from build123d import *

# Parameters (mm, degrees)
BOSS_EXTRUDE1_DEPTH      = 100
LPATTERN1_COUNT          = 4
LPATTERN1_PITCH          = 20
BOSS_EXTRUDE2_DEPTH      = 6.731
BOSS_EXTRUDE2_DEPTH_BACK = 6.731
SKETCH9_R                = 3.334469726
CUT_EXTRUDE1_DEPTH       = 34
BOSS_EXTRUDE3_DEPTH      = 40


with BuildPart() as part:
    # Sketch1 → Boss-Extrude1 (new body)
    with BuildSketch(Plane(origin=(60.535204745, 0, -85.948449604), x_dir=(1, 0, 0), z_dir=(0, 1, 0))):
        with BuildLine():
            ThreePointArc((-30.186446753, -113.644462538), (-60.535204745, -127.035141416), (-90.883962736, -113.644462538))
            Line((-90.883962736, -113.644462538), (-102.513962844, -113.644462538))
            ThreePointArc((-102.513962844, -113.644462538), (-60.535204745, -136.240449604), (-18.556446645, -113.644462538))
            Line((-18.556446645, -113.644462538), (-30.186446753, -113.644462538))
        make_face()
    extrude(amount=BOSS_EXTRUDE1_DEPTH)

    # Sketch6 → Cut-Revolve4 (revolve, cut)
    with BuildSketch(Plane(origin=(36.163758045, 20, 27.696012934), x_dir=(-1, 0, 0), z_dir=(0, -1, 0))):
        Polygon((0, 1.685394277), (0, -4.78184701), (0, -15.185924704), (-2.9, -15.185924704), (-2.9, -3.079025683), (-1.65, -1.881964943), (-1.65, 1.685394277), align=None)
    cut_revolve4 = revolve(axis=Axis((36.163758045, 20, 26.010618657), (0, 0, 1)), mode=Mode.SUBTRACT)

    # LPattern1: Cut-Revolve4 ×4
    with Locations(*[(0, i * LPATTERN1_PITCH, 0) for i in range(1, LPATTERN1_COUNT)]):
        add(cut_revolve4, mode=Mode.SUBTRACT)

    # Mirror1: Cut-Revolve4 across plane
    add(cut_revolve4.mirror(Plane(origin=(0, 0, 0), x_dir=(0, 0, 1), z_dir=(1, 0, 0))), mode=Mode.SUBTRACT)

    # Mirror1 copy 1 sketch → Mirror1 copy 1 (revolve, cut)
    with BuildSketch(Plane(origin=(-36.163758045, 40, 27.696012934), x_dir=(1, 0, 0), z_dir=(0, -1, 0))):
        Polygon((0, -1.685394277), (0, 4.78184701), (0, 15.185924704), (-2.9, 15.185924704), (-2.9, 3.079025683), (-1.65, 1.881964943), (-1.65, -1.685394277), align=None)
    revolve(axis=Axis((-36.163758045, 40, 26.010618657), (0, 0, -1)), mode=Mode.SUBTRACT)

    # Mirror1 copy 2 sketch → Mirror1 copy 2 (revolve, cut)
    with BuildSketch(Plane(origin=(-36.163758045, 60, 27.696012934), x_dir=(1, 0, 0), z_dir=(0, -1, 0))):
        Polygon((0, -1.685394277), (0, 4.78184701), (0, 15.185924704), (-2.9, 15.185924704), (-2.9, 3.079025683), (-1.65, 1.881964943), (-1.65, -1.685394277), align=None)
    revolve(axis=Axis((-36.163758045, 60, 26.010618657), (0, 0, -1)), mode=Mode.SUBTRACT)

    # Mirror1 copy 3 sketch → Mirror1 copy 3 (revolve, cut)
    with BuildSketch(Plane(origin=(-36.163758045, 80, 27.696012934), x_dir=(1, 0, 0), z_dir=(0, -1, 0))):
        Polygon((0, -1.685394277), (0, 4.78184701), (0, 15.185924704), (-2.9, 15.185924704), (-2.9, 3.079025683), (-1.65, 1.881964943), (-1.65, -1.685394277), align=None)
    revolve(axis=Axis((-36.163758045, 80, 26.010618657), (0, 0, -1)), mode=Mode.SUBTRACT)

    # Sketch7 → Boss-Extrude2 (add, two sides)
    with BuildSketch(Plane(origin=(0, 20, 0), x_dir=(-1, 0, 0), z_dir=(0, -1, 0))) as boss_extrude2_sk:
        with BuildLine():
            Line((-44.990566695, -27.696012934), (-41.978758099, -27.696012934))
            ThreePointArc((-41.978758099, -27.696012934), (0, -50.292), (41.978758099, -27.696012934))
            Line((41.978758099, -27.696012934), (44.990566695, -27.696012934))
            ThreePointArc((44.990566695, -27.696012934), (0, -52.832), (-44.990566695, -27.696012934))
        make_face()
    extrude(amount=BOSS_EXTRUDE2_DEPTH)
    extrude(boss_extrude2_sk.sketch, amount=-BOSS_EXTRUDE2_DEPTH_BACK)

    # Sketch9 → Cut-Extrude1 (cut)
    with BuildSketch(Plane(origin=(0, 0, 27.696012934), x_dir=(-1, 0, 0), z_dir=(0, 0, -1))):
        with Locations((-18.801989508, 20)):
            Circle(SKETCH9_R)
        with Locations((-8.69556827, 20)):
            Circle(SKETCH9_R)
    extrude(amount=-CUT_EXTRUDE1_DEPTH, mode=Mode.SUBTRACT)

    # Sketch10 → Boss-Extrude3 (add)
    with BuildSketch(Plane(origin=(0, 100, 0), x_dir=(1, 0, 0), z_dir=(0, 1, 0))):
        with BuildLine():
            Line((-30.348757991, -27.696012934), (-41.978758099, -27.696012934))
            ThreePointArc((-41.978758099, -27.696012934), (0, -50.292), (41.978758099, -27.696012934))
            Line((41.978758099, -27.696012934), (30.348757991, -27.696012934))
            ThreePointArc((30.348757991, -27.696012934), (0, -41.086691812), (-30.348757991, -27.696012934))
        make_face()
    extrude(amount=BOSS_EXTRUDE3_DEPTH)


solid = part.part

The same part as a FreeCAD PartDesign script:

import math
import FreeCAD as App
import Part
import Sketcher


def add_polygon(sketch, points):
    """Adds a closed chain of lines whose ends are joined by coincident constraints."""
    first, n = sketch.GeometryCount, len(points)
    for a, b in zip(points, points[1:] + points[:1]):
        sketch.addGeometry(Part.LineSegment(App.Vector(*a, 0), App.Vector(*b, 0)), False)
    for i in range(n):
        sketch.addConstraint(Sketcher.Constraint("Coincident", first + i, 2, first + (i + 1) % n, 1))

doc = App.newDocument("Part")
body = doc.addObject("PartDesign::Body", "Body")

sketch1 = body.newObject("Sketcher::SketchObject", "Sketch")
sketch1.AttachmentSupport = (doc.getObject("XZ_Plane"), [""])
sketch1.MapMode = "FlatFace"
sketch1.addGeometry([
    Part.ArcOfCircle(Part.Circle(App.Vector(0, 0, 0), App.Vector(0, 0, 1), 41), math.radians(42), math.radians(138)),
    Part.LineSegment(App.Vector(-30, 28, 0), App.Vector(-42, 28, 0)),
    Part.ArcOfCircle(Part.Circle(App.Vector(0, 0, 0), App.Vector(0, 0, 1), 50), math.radians(33), math.radians(147)),
    Part.LineSegment(App.Vector(42, 28, 0), App.Vector(30, 28, 0)),
], False)
sketch1.addConstraint([
    Sketcher.Constraint("Coincident", 0, 2, 1, 1),
    Sketcher.Constraint("Coincident", 1, 2, 2, 2),
    Sketcher.Constraint("Coincident", 2, 1, 3, 1),
    Sketcher.Constraint("Coincident", 3, 2, 0, 1),
    Sketcher.Constraint("Horizontal", 1),
    Sketcher.Constraint("Horizontal", 3),
    Sketcher.Constraint("Coincident", 0, 3, -1, 1),
    Sketcher.Constraint("Coincident", 2, 3, -1, 1),
    Sketcher.Constraint("Horizontal", 1, 2, 2, 1),
    Sketcher.Constraint("Radius", 2, 50.292),
    Sketcher.Constraint("DistanceX", 1, 2, 1, 1, 11.63),
    Sketcher.Constraint("Radius", 0, 41.086692),
])
pad1 = body.newObject("PartDesign::Pad", "Pad")
pad1.Profile = sketch1
pad1.Length = 100
pad1.Reversed = True

sketch2 = body.newObject("Sketcher::SketchObject", "Sketch001")
sketch2.AttachmentSupport = (doc.getObject("XZ_Plane"), [""])
sketch2.MapMode = "FlatFace"
sketch2.AttachmentOffset = App.Placement(App.Vector(0, 0, -20), App.Rotation())
add_polygon(sketch2, [(36.2, 42.9), (36.2, 26), (37.8, 26), (37.8, 29.6), (39.1, 30.8), (39.1, 42.9)])
sketch2.addGeometry(Part.LineSegment(App.Vector(36.2, 26, 0), App.Vector(36.2, 42.9, 0)), True)
sketch2.addConstraint([
    Sketcher.Constraint("Vertical", 0),
    Sketcher.Constraint("Horizontal", 1),
    Sketcher.Constraint("Vertical", 2),
    Sketcher.Constraint("Vertical", 4),
    Sketcher.Constraint("Horizontal", 5),
    Sketcher.Constraint("Vertical", 6),
    Sketcher.Constraint("Coincident", 6, 1, 0, 2),
    Sketcher.Constraint("Horizontal", 4, 2, 6, 2),
    Sketcher.Constraint("DistanceX", 5, 2, 5, 1, 2.9),
    Sketcher.Constraint("DistanceX", 1, 1, 1, 2, 1.65),
    Sketcher.Constraint("DistanceY", 4, 1, 4, 2, 12.106899),
    Sketcher.Constraint("DistanceY", 0, 2, 0, 1, 16.871319),
    Sketcher.Constraint("DistanceY", 2, 1, 2, 2, 3.567359),
    Sketcher.Constraint("DistanceX", -1, 1, 0, 2, 36.163758),
    Sketcher.Constraint("DistanceY", -1, 1, 0, 2, 26.010619),
])
groove = body.newObject("PartDesign::Groove", "Groove")
groove.Profile = sketch2
groove.ReferenceAxis = (sketch2, ["Axis0"])
groove.Angle = 360
doc.recompute()

linearpattern = body.newObject("PartDesign::LinearPattern", "LinearPattern")
linearpattern.Originals = [groove]
linearpattern.Direction = (doc.getObject("Y_Axis"), [""])
linearpattern.Mode = "offset"
linearpattern.Offset = 20
linearpattern.Occurrences = 4
body.Tip = linearpattern
doc.recompute()

mirrored = body.newObject("PartDesign::Mirrored", "Mirrored")
mirrored.Originals = [groove]
mirrored.MirrorPlane = (doc.getObject("YZ_Plane"), [""])
body.Tip = mirrored

sketch3 = body.newObject("Sketcher::SketchObject", "Sketch002")
sketch3.AttachmentSupport = (doc.getObject("XZ_Plane"), [""])
sketch3.MapMode = "FlatFace"
sketch3.AttachmentOffset = App.Placement(App.Vector(0, 0, -40), App.Rotation())
add_polygon(sketch3, [(-36.2, 26), (-36.2, 42.9), (-39.1, 42.9), (-39.1, 30.8), (-37.8, 29.6), (-37.8, 26)])
sketch3.addGeometry(Part.LineSegment(App.Vector(-36.2, 42.9, 0), App.Vector(-36.2, 26, 0)), True)
sketch3.addConstraint([
    Sketcher.Constraint("Vertical", 0),
    Sketcher.Constraint("Horizontal", 1),
    Sketcher.Constraint("Vertical", 2),
    Sketcher.Constraint("Vertical", 4),
    Sketcher.Constraint("Horizontal", 5),
    Sketcher.Constraint("Vertical", 6),
    Sketcher.Constraint("Coincident", 6, 1, 0, 2),
    Sketcher.Constraint("Horizontal", 4, 2, 6, 2),
    Sketcher.Constraint("DistanceX", 1, 2, 1, 1, 2.9),
    Sketcher.Constraint("DistanceX", 5, 1, 5, 2, 1.65),
    Sketcher.Constraint("DistanceY", 2, 2, 2, 1, 12.106899),
    Sketcher.Constraint("DistanceY", 0, 1, 0, 2, 16.871319),
    Sketcher.Constraint("DistanceY", 4, 2, 4, 1, 3.567359),
    Sketcher.Constraint("DistanceX", 0, 2, -1, 1, 36.163758),
    Sketcher.Constraint("DistanceY", -1, 1, 2, 2, 30.775039),
])
groove2 = body.newObject("PartDesign::Groove", "Groove001")
groove2.Profile = sketch3
groove2.ReferenceAxis = (sketch3, ["Axis0"])
groove2.Angle = 360

sketch4 = body.newObject("Sketcher::SketchObject", "Sketch003")
sketch4.AttachmentSupport = (doc.getObject("XZ_Plane"), [""])
sketch4.MapMode = "FlatFace"
sketch4.AttachmentOffset = App.Placement(App.Vector(0, 0, -60), App.Rotation())
add_polygon(sketch4, [(-36.2, 26), (-36.2, 42.9), (-39.1, 42.9), (-39.1, 30.8), (-37.8, 29.6), (-37.8, 26)])
sketch4.addGeometry(Part.LineSegment(App.Vector(-36.2, 42.9, 0), App.Vector(-36.2, 26, 0)), True)
sketch4.addConstraint([
    Sketcher.Constraint("Vertical", 0),
    Sketcher.Constraint("Horizontal", 1),
    Sketcher.Constraint("Vertical", 2),
    Sketcher.Constraint("Vertical", 4),
    Sketcher.Constraint("Horizontal", 5),
    Sketcher.Constraint("Vertical", 6),
    Sketcher.Constraint("Coincident", 6, 1, 0, 2),
    Sketcher.Constraint("Horizontal", 4, 2, 6, 2),
    Sketcher.Constraint("DistanceX", 1, 2, 1, 1, 2.9),
    Sketcher.Constraint("DistanceX", 5, 1, 5, 2, 1.65),
    Sketcher.Constraint("DistanceY", 2, 2, 2, 1, 12.106899),
    Sketcher.Constraint("DistanceY", 0, 1, 0, 2, 16.871319),
    Sketcher.Constraint("DistanceY", 4, 2, 4, 1, 3.567359),
    Sketcher.Constraint("DistanceX", 0, 2, -1, 1, 36.163758),
    Sketcher.Constraint("DistanceY", -1, 1, 2, 2, 30.775039),
])
groove3 = body.newObject("PartDesign::Groove", "Groove002")
groove3.Profile = sketch4
groove3.ReferenceAxis = (sketch4, ["Axis0"])
groove3.Angle = 360

sketch5 = body.newObject("Sketcher::SketchObject", "Sketch004")
sketch5.AttachmentSupport = (doc.getObject("XZ_Plane"), [""])
sketch5.MapMode = "FlatFace"
sketch5.AttachmentOffset = App.Placement(App.Vector(0, 0, -80), App.Rotation())
add_polygon(sketch5, [(-36.2, 26), (-36.2, 42.9), (-39.1, 42.9), (-39.1, 30.8), (-37.8, 29.6), (-37.8, 26)])
sketch5.addGeometry(Part.LineSegment(App.Vector(-36.2, 42.9, 0), App.Vector(-36.2, 26, 0)), True)
sketch5.addConstraint([
    Sketcher.Constraint("Vertical", 0),
    Sketcher.Constraint("Horizontal", 1),
    Sketcher.Constraint("Vertical", 2),
    Sketcher.Constraint("Vertical", 4),
    Sketcher.Constraint("Horizontal", 5),
    Sketcher.Constraint("Vertical", 6),
    Sketcher.Constraint("Coincident", 6, 1, 0, 2),
    Sketcher.Constraint("Horizontal", 4, 2, 6, 2),
    Sketcher.Constraint("DistanceX", 1, 2, 1, 1, 2.9),
    Sketcher.Constraint("DistanceX", 5, 1, 5, 2, 1.65),
    Sketcher.Constraint("DistanceY", 2, 2, 2, 1, 12.106899),
    Sketcher.Constraint("DistanceY", 0, 1, 0, 2, 16.871319),
    Sketcher.Constraint("DistanceY", 4, 2, 4, 1, 3.567359),
    Sketcher.Constraint("DistanceX", 0, 2, -1, 1, 36.163758),
    Sketcher.Constraint("DistanceY", -1, 1, 2, 2, 30.775039),
])
groove4 = body.newObject("PartDesign::Groove", "Groove003")
groove4.Profile = sketch5
groove4.ReferenceAxis = (sketch5, ["Axis0"])
groove4.Angle = 360

sketch6 = body.newObject("Sketcher::SketchObject", "Sketch005")
sketch6.AttachmentSupport = (doc.getObject("XZ_Plane"), [""])
sketch6.MapMode = "FlatFace"
sketch6.AttachmentOffset = App.Placement(App.Vector(0, 0, -20), App.Rotation())
sketch6.addGeometry([
    Part.LineSegment(App.Vector(42, 27.7, 0), App.Vector(45, 27.7, 0)),
    Part.ArcOfCircle(Part.Circle(App.Vector(0, 0, 0), App.Vector(0, 0, 1), 52.8), math.radians(32), math.radians(148)),
    Part.LineSegment(App.Vector(-45, 27.7, 0), App.Vector(-42, 27.7, 0)),
    Part.ArcOfCircle(Part.Circle(App.Vector(0, 0, 0), App.Vector(0, 0, 1), 50.3), math.radians(33), math.radians(147)),
], False)
sketch6.addConstraint([
    Sketcher.Constraint("Coincident", 0, 2, 1, 1),
    Sketcher.Constraint("Coincident", 1, 2, 2, 1),
    Sketcher.Constraint("Coincident", 2, 2, 3, 2),
    Sketcher.Constraint("Coincident", 3, 1, 0, 1),
    Sketcher.Constraint("Horizontal", 0),
    Sketcher.Constraint("Horizontal", 2),
    Sketcher.Constraint("Coincident", 1, 3, -1, 1),
    Sketcher.Constraint("Coincident", 3, 3, -1, 1),
    Sketcher.Constraint("Horizontal", 0, 2, 1, 2),
    Sketcher.Constraint("Radius", 1, 52.832),
    Sketcher.Constraint("Radius", 3, 50.292),
    Sketcher.Constraint("DistanceX", 0, 1, 0, 2, 3.011809),
])
pad2 = body.newObject("PartDesign::Pad", "Pad001")
pad2.Profile = sketch6
pad2.Type = "TwoLengths"
pad2.Length = 6.731
pad2.Length2 = 6.731

sketch7 = body.newObject("Sketcher::SketchObject", "Sketch006")
sketch7.AttachmentSupport = (doc.getObject("XY_Plane"), [""])
sketch7.MapMode = "FlatFace"
sketch7.AttachmentOffset = App.Placement(App.Vector(0, 0, 27.696013), App.Rotation())
sketch7.addGeometry([
    Part.Circle(App.Vector(18.8, 20, 0), App.Vector(0, 0, 1), 3.3),
    Part.Circle(App.Vector(8.7, 20, 0), App.Vector(0, 0, 1), 3.3),
], False)
sketch7.addConstraint([
    Sketcher.Constraint("Equal", 0, 1),
    Sketcher.Constraint("Horizontal", 0, 3, 1, 3),
    Sketcher.Constraint("DistanceY", -1, 1, 0, 3, 20.0),
    Sketcher.Constraint("Diameter", 0, 6.668939),
    Sketcher.Constraint("DistanceX", -1, 1, 0, 3, 18.80199),
    Sketcher.Constraint("DistanceX", -1, 1, 1, 3, 8.695568),
])
pocket1 = body.newObject("PartDesign::Pocket", "Pocket")
pocket1.Profile = sketch7
pocket1.Length = 34
pocket1.Reversed = True

sketch8 = body.newObject("Sketcher::SketchObject", "Sketch007")
sketch8.AttachmentSupport = (doc.getObject("XZ_Plane"), [""])
sketch8.MapMode = "FlatFace"
sketch8.AttachmentOffset = App.Placement(App.Vector(0, 0, -100), App.Rotation())
sketch8.addGeometry([
    Part.LineSegment(App.Vector(-30, 28, 0), App.Vector(-42, 28, 0)),
    Part.ArcOfCircle(Part.Circle(App.Vector(0, 0, 0), App.Vector(0, 0, 1), 50), math.radians(33), math.radians(147)),
    Part.LineSegment(App.Vector(42, 28, 0), App.Vector(30, 28, 0)),
    Part.ArcOfCircle(Part.Circle(App.Vector(0, 0, 0), App.Vector(0, 0, 1), 41), math.radians(42), math.radians(138)),
], False)
sketch8.addConstraint([
    Sketcher.Constraint("Coincident", 0, 2, 1, 2),
    Sketcher.Constraint("Coincident", 1, 1, 2, 1),
    Sketcher.Constraint("Coincident", 2, 2, 3, 1),
    Sketcher.Constraint("Coincident", 3, 2, 0, 1),
    Sketcher.Constraint("Horizontal", 0),
    Sketcher.Constraint("Horizontal", 2),
    Sketcher.Constraint("Coincident", 1, 3, -1, 1),
    Sketcher.Constraint("Coincident", 3, 3, -1, 1),
    Sketcher.Constraint("Horizontal", 0, 2, 1, 1),
    Sketcher.Constraint("Radius", 1, 50.292),
    Sketcher.Constraint("DistanceX", 0, 2, 0, 1, 11.63),
    Sketcher.Constraint("Radius", 3, 41.086692),
])
pad3 = body.newObject("PartDesign::Pad", "Pad002")
pad3.Profile = sketch8
pad3.Length = 40
pad3.Reversed = True

doc.recompute()
